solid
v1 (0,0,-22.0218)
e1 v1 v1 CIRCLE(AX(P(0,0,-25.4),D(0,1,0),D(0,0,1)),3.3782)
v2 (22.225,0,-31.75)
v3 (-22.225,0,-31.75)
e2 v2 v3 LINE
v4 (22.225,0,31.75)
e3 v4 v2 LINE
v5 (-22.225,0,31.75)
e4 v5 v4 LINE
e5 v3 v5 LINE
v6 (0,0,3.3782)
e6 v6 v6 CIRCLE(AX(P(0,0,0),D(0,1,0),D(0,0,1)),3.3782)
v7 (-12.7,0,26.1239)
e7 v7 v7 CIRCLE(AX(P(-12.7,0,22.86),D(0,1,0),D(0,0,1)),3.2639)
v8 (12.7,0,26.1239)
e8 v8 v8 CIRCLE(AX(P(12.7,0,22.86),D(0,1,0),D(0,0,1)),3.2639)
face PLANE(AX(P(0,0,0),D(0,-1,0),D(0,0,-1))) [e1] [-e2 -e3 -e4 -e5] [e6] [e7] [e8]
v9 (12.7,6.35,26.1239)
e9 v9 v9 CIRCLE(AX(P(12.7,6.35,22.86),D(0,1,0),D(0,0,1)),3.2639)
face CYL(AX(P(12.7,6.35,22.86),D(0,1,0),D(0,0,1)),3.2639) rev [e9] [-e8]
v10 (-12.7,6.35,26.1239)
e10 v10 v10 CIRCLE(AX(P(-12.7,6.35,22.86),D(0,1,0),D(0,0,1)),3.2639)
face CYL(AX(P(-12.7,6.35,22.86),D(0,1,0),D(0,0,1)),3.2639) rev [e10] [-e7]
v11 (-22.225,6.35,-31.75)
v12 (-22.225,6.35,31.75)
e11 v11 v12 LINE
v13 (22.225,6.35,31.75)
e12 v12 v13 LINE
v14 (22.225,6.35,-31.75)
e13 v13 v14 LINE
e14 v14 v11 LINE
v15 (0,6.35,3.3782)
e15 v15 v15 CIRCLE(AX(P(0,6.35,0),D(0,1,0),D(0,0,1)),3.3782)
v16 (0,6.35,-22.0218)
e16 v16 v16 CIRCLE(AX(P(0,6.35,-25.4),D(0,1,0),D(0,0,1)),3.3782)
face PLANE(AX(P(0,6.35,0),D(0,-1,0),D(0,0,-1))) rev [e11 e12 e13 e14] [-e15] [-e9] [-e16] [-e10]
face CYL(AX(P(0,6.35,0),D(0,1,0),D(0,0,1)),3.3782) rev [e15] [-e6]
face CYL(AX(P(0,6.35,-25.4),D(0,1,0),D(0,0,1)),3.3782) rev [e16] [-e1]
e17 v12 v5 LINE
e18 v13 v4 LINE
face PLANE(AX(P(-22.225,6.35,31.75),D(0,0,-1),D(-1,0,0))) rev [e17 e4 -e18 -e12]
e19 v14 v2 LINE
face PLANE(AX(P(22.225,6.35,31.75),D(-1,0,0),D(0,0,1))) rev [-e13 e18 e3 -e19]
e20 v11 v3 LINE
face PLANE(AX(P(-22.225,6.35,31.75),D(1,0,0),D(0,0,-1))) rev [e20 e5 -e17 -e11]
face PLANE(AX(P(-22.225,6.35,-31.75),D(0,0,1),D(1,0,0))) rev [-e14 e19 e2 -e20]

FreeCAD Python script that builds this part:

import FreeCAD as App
import Part
import Sketcher

V = App.Vector
Q = App.Units.Quantity


def add_polygon(sketch, points):
    """Adds a closed chain of lines whose ends are joined by coincident constraints."""
    first, n = sketch.GeometryCount, len(points)
    for a, b in zip(points, points[1:] + points[:1]):
        sketch.addGeometry(Part.LineSegment(App.Vector(*a, 0), App.Vector(*b, 0)), False)
    for i in range(n):
        sketch.addConstraint(Sketcher.Constraint("Coincident", first + i, 2, first + (i + 1) % n, 1))

doc = App.newDocument("Part")
params = doc.addObject("Spreadsheet::Sheet", "Params")
for row, (alias, value) in enumerate([
    ("sketch1_height", "2.5 in"),
    ("sketch1_width", "1.75 in"),
    ("pad1_length", "0.25 in"),
    ("sketch2_diameter", "0.266 in"),
    ("hole_diameter", "0.266 in"),
    ("sketch3_diameter", "0.257 in"),
    ("hole2_diameter", "0.257 in"),
], start=1):
    params.set(f"A{row}", alias)
    params.set(f"B{row}", "=" + value)
    params.setAlias(f"B{row}", alias)

body = doc.addObject("PartDesign::Body", "Body")

# Sketch on XZ plane
sketch1 = body.newObject("Sketcher::SketchObject", "Sketch")
sketch1.AttachmentSupport = (doc.getObject("XZ_Plane"), [""])
sketch1.MapMode = "FlatFace"
add_polygon(sketch1, [(-22.225, -31.75), (-22.225, 31.75), (22.225, 31.75), (22.225, -31.75)])  # lines 0-3
sketch1.addConstraint([
    Sketcher.Constraint("Vertical", 0),
    Sketcher.Constraint("Horizontal", 1),
    Sketcher.Constraint("Vertical", 2),
    Sketcher.Constraint("Horizontal", 3),
    Sketcher.Constraint("Symmetric", 0, 2, 2, 2, -1, 1),
    Sketcher.Constraint("DistanceY", 0, 1, 0, 2, Q("2.5 in")),
    Sketcher.Constraint("DistanceX", 1, 1, 1, 2, Q("1.75 in")),
])
sketch1.setExpression("Constraints[9]", "Params.sketch1_height")
sketch1.setExpression("Constraints[10]", "Params.sketch1_width")
pad1 = body.newObject("PartDesign::Pad", "Pad")
pad1.Profile = sketch1
pad1.setExpression("Length", "Params.pad1_length")
pad1.Reversed = True

# Sketch on XZ plane
sketch2 = body.newObject("Sketcher::SketchObject", "Sketch001")
sketch2.AttachmentSupport = (doc.getObject("XZ_Plane"), [""])
sketch2.MapMode = "FlatFace"
sketch2.AttachmentOffset = App.Placement(V(0, 0, -0.25 * 25.4), App.Rotation())
sketch2.addGeometry([
    Part.Circle(V(0, -25.4, 0), V(0, 0, 1), 3.3782),
    Part.Circle(V(0, 0, 0), V(0, 0, 1), 3.3782),
], False)
sketch2.addConstraint([
    Sketcher.Constraint("Coincident", 1, 3, -1, 1),
    Sketcher.Constraint("Equal", 0, 1),
    Sketcher.Constraint("PointOnObject", 0, 3, -2),
    Sketcher.Constraint("Diameter", 0, Q("0.266 in")),
    Sketcher.Constraint("DistanceY", 0, 3, -1, 1, Q("1 in")),
])
sketch2.setExpression("Constraints[3]", "Params.sketch2_diameter")
doc.recompute()
hole = body.newObject("PartDesign::Hole", "Hole")
hole.Profile = sketch2
hole.ThreadType = "None"
hole.setExpression("Diameter", "Params.hole_diameter")
hole.DepthType = "ThroughAll"
hole.Reversed = True

# Sketch on XZ plane
sketch3 = body.newObject("Sketcher::SketchObject", "Sketch002")
sketch3.AttachmentSupport = (doc.getObject("XZ_Plane"), [""])
sketch3.MapMode = "FlatFace"
sketch3.AttachmentOffset = App.Placement(V(0, 0, -0.25 * 25.4), App.Rotation())
sketch3.addGeometry([
    Part.Circle(V(-12.7, 22.86, 0), V(0, 0, 1), 3.2639),
    Part.Circle(V(12.7, 22.86, 0), V(0, 0, 1), 3.2639),
], False)
sketch3.addConstraint([
    Sketcher.Constraint("Equal", 0, 1),
    Sketcher.Constraint("Symmetric", 0, 3, 1, 3, -2),
    Sketcher.Constraint("Diameter", 0, Q("0.257 in")),
    Sketcher.Constraint("DistanceX", 0, 3, 1, 3, Q("1 in")),
    Sketcher.Constraint("DistanceY", -1, 1, 0, 3, Q("0.9 in")),
])
sketch3.setExpression("Constraints[2]", "Params.sketch3_diameter")
doc.recompute()
hole2 = body.newObject("PartDesign::Hole", "Hole001")
hole2.Profile = sketch3
hole2.ThreadType = "None"
hole2.setExpression("Diameter", "Params.hole2_diameter")
hole2.DepthType = "ThroughAll"
hole2.Reversed = True

doc.recompute()
